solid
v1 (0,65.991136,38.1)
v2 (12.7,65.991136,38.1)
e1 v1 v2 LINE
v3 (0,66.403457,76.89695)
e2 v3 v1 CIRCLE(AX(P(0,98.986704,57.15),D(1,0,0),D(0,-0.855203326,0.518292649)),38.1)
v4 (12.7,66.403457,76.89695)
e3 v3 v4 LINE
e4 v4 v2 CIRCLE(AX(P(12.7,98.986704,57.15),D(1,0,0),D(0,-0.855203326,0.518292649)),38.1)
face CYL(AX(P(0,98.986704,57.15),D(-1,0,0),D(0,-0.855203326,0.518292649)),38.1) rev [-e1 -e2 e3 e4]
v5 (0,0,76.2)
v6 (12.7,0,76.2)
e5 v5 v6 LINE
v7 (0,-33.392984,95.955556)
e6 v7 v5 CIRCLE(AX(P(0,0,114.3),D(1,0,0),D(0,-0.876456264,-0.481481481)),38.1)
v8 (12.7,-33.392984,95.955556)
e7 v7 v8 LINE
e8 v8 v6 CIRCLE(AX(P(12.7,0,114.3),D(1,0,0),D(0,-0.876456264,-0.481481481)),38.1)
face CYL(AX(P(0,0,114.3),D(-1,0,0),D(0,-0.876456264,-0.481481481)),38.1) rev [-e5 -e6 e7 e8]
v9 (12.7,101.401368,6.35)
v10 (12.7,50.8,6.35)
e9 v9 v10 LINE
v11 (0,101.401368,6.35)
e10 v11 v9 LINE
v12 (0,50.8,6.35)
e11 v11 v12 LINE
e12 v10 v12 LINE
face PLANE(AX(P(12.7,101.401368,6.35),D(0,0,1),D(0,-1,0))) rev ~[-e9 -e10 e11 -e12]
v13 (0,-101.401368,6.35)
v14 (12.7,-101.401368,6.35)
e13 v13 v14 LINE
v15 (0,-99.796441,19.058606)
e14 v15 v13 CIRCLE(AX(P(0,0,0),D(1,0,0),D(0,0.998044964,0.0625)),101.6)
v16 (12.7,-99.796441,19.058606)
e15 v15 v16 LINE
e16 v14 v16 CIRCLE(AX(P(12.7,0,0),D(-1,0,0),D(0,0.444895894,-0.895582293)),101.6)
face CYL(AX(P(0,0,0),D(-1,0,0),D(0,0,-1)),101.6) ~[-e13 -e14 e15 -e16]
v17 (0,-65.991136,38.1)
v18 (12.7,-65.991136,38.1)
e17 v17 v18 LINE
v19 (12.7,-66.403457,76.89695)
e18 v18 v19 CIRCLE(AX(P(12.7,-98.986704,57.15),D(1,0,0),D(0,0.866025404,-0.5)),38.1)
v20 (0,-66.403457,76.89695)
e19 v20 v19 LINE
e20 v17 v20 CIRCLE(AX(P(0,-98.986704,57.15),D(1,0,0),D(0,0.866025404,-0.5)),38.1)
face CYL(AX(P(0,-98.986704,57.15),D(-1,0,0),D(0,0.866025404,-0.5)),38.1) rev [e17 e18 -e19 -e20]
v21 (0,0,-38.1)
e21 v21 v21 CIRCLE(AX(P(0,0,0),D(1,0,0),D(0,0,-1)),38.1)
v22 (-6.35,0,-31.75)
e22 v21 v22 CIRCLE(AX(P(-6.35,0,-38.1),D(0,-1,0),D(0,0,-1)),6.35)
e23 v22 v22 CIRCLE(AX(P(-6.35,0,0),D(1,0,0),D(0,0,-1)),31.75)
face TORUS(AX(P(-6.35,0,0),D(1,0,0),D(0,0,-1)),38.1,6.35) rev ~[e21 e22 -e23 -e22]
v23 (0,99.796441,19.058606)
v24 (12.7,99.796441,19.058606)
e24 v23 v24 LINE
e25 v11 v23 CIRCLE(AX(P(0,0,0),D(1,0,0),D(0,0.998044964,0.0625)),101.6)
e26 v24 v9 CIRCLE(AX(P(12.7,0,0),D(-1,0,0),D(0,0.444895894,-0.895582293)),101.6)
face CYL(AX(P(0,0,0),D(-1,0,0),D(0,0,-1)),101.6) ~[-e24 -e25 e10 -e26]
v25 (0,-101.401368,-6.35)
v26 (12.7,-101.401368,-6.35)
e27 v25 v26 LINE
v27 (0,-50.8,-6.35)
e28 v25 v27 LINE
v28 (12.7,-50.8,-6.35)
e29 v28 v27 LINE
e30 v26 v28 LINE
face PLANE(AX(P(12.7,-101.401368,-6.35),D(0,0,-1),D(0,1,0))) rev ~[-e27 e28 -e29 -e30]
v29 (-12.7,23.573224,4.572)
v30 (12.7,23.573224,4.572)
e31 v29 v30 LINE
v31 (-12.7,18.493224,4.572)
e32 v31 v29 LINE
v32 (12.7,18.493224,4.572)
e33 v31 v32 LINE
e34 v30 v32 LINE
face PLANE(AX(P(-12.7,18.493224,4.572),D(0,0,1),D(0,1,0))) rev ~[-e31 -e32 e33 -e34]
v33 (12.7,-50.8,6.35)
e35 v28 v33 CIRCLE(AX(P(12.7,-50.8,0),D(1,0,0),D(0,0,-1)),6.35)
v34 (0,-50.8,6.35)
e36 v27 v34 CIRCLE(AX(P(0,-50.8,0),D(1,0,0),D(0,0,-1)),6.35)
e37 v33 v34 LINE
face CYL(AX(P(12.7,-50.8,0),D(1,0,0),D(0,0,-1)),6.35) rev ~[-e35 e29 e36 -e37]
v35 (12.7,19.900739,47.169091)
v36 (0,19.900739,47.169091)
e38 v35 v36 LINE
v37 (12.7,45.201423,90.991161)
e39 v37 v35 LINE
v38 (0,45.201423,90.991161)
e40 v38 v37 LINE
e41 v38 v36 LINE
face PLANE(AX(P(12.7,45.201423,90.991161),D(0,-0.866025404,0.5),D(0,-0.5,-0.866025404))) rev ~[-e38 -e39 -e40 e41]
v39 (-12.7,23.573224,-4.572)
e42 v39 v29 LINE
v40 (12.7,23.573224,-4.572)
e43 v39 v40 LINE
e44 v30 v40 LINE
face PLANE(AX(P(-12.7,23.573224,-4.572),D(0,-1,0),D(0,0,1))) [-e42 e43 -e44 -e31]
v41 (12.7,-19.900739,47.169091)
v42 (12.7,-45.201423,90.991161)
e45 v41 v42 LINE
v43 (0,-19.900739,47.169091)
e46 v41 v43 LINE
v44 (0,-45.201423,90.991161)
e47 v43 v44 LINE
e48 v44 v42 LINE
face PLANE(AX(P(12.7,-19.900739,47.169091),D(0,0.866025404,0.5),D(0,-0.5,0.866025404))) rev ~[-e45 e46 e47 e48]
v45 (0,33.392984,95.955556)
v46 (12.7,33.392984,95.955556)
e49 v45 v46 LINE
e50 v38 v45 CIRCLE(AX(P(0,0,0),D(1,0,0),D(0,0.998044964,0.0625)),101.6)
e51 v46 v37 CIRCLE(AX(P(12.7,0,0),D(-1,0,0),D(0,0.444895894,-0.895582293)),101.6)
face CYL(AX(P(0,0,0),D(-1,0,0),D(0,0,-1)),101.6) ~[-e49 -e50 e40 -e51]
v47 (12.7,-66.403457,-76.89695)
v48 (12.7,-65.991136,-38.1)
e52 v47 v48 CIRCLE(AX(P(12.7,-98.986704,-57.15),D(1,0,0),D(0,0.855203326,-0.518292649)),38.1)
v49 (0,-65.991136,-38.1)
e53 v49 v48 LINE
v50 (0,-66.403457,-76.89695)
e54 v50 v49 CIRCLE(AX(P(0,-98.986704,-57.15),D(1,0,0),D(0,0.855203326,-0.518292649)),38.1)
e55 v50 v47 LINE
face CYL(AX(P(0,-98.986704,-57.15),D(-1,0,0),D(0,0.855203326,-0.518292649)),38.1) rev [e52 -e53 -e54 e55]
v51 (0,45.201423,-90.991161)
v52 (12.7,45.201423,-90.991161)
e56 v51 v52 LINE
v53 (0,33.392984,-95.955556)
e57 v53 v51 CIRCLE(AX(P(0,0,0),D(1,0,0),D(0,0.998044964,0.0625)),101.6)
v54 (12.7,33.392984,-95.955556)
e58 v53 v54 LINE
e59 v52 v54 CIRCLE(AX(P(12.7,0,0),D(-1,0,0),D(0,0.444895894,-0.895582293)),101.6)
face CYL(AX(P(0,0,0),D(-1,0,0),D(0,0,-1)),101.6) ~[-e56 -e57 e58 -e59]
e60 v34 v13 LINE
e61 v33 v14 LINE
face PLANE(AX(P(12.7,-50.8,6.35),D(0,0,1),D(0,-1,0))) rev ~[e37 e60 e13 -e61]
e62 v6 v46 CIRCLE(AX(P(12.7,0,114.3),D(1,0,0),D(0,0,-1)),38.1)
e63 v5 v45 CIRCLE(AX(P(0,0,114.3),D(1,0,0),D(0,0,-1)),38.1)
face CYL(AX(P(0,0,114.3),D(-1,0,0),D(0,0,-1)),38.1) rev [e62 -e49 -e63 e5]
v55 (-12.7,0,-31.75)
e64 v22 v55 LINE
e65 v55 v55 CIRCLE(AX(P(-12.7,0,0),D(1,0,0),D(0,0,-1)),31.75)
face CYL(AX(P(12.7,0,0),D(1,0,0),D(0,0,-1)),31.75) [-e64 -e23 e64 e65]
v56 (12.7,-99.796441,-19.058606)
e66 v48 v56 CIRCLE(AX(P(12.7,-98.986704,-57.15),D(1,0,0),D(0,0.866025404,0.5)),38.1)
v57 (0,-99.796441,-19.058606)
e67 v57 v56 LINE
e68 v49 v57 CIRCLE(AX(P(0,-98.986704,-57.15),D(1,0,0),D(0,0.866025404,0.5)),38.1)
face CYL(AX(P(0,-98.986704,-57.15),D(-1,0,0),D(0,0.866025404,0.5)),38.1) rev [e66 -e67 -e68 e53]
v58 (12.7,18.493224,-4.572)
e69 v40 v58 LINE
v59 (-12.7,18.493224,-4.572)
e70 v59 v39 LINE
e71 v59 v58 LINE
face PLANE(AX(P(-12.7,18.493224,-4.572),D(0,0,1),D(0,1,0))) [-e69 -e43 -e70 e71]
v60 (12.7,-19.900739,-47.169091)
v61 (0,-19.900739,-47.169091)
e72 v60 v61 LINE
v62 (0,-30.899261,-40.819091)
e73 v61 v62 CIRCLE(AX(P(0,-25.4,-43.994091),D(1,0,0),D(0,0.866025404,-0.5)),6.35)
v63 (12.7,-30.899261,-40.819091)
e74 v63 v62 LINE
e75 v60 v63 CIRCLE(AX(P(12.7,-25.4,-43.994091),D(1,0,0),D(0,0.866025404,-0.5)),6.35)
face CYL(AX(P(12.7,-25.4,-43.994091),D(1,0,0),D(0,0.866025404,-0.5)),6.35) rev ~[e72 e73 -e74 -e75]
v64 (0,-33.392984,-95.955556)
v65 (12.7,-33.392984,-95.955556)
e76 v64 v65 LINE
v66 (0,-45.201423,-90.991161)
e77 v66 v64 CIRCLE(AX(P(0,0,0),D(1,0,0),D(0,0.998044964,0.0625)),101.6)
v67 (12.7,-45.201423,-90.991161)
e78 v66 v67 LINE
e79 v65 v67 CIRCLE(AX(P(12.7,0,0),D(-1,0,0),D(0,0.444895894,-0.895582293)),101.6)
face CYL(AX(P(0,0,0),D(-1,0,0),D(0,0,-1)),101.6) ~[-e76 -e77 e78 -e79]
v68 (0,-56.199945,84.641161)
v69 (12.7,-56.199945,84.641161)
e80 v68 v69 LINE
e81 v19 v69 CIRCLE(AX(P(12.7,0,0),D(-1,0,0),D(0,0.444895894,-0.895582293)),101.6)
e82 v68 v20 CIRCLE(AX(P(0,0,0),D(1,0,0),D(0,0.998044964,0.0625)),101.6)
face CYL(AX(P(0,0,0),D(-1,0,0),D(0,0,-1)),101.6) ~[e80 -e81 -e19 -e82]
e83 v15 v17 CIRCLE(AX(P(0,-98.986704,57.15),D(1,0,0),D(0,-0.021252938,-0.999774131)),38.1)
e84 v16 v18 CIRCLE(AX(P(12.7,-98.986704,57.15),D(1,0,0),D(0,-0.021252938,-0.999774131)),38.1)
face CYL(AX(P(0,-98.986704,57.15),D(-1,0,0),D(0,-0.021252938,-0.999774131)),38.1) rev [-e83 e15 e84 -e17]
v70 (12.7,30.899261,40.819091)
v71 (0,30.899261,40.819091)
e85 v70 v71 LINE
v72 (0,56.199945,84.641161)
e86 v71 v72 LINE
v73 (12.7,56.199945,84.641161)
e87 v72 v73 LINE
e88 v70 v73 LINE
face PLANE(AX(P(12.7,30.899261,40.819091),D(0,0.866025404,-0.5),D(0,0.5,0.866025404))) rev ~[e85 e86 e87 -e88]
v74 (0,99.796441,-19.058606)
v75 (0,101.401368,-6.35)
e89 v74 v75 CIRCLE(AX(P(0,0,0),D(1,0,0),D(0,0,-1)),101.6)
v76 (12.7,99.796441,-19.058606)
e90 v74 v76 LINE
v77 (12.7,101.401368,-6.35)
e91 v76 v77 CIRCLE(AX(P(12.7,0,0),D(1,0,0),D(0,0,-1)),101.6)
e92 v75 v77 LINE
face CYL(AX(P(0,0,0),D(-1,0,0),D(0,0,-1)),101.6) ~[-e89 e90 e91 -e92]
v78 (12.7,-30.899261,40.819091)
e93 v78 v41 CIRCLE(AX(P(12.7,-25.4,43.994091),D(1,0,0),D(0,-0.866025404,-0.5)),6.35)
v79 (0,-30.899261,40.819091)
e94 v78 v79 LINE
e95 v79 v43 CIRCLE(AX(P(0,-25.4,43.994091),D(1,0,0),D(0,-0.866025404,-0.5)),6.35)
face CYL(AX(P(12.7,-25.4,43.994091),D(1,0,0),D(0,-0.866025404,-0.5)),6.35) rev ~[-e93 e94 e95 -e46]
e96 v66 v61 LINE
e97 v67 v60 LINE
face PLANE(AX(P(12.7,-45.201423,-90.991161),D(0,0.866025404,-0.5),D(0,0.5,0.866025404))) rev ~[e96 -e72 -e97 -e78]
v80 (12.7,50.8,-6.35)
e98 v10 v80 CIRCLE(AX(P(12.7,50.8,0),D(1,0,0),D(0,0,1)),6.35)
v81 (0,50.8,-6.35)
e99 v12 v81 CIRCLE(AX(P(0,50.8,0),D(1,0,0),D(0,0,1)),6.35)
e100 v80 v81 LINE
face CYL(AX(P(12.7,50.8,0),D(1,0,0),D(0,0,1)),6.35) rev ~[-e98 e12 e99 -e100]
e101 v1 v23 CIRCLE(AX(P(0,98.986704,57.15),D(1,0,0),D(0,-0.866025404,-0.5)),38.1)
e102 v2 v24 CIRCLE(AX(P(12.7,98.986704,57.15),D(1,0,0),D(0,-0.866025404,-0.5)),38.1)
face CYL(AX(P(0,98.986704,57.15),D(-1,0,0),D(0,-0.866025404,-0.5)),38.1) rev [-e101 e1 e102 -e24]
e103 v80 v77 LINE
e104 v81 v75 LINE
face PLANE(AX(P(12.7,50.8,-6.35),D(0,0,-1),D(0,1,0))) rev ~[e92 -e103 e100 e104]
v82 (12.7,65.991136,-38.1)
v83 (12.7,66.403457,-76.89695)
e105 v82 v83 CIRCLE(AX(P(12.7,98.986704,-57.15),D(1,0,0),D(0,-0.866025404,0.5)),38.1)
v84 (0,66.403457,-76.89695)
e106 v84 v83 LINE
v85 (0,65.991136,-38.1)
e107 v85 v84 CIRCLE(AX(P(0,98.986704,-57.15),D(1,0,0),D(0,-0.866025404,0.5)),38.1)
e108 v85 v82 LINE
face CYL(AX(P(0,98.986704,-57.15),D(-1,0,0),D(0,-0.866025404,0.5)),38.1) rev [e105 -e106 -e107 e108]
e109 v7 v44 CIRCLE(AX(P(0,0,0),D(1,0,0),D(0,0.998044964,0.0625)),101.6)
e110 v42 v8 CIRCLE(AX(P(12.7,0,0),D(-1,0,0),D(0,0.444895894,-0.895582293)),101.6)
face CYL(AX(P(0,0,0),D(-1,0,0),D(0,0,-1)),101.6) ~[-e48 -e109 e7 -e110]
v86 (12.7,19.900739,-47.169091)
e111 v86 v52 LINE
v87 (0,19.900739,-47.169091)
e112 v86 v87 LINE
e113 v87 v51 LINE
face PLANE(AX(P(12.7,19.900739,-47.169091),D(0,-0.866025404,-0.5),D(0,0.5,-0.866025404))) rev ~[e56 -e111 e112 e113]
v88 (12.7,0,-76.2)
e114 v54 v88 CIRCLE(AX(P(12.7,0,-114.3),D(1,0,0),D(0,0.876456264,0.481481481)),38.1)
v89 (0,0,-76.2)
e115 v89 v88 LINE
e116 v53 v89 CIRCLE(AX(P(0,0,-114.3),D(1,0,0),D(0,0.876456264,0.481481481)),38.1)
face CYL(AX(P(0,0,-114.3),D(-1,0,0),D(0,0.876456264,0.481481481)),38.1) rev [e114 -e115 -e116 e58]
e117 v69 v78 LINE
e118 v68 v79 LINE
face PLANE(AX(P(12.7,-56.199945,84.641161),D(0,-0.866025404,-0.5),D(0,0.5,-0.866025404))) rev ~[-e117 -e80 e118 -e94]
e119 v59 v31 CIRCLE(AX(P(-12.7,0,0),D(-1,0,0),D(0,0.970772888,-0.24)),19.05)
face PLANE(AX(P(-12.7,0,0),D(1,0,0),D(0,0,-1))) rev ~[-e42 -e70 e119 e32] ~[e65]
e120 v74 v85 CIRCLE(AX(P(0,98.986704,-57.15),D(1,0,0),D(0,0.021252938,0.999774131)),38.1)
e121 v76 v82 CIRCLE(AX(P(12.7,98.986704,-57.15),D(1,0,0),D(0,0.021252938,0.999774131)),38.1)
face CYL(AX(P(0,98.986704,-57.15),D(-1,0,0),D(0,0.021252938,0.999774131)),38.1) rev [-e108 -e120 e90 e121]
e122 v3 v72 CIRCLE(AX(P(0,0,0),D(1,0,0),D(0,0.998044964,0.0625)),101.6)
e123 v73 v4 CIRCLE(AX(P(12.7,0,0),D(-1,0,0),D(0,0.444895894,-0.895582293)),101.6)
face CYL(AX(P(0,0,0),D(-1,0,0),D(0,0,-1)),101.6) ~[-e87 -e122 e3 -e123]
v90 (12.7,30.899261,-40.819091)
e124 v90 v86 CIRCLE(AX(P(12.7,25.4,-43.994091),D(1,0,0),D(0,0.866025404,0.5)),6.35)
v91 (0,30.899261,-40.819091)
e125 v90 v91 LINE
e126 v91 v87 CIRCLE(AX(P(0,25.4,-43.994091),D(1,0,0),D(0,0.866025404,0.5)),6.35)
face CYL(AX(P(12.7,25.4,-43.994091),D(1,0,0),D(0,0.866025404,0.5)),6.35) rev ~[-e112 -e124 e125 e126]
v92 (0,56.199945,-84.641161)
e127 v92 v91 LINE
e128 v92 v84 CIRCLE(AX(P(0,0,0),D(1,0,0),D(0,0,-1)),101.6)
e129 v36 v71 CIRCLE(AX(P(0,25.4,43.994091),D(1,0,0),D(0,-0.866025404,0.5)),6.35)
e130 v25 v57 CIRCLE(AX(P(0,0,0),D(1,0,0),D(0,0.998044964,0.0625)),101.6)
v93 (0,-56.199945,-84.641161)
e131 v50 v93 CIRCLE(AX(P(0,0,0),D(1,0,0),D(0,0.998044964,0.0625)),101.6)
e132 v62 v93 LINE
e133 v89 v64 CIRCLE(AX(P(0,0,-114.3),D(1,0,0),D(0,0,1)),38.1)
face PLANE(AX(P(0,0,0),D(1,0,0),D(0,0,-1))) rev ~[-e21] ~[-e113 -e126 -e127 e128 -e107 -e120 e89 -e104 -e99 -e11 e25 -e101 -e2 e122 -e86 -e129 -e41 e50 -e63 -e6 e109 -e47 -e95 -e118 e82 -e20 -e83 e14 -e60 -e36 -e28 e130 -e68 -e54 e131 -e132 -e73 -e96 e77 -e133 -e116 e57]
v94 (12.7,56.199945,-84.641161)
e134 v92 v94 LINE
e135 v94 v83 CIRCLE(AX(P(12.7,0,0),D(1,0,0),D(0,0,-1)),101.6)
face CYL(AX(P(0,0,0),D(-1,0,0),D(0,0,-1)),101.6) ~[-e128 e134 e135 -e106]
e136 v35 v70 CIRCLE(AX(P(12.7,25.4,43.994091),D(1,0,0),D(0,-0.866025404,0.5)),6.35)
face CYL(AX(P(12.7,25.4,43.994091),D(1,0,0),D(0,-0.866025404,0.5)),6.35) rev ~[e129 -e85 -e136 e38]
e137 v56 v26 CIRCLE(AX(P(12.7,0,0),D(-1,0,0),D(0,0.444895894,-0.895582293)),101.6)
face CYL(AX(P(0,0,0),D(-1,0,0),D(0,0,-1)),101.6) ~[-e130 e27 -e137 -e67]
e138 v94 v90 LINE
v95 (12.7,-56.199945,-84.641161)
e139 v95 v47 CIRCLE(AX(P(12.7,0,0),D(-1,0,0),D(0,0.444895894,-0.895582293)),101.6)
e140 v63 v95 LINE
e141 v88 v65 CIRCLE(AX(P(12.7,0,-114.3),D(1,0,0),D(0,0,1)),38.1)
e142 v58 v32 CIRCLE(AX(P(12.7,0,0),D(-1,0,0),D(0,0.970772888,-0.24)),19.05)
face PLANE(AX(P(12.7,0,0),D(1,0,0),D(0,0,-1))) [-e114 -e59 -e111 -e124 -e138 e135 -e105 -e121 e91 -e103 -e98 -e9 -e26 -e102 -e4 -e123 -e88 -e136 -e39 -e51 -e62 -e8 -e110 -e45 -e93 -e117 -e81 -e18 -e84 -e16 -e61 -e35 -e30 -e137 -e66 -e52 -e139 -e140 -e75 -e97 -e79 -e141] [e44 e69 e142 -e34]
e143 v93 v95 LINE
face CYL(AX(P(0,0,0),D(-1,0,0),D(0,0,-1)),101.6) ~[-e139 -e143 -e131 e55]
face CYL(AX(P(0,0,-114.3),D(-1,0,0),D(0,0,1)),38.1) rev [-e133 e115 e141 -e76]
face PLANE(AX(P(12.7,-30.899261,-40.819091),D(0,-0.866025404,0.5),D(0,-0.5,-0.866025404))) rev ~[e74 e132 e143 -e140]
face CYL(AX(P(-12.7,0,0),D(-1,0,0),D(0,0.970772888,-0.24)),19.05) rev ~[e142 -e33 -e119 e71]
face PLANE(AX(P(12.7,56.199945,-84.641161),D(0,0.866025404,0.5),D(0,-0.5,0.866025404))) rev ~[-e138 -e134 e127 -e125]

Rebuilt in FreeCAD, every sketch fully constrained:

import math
import FreeCAD as App
import Part
import Sketcher
Q = App.Units.Quantity


def edges_at(feature, points):
    """Names of the edges that pass closest to the given points."""
    edges = feature.Shape.Edges
    near = lambda p: min(range(len(edges)), key=lambda i: edges[i].distToShape(Part.Vertex(*p))[0])
    return sorted({f"Edge{near(p) + 1}" for p in points})

doc = App.newDocument("Part")
body = doc.addObject("PartDesign::Body", "Body")

# Sketch on YZ plane
sketch1 = body.newObject("Sketcher::SketchObject", "Sketch")
sketch1.AttachmentSupport = (doc.getObject("YZ_Plane"), [""])
sketch1.MapMode = "FlatFace"
sketch1.addGeometry(Part.Circle(App.Vector(0, 0, 0), App.Vector(0, 0, 1), 102), False)
sketch1.addConstraint(Sketcher.Constraint("Coincident", 0, 3, -1, 1))
sketch1.addConstraint(Sketcher.Constraint("Diameter", 0, Q("8 in")))
pad1 = body.newObject("PartDesign::Pad", "Pad")
pad1.Profile = sketch1
pad1.Length = Q("0.5 in")

# Sketch on YZ plane
sketch2 = body.newObject("Sketcher::SketchObject", "Sketch001")
sketch2.AttachmentSupport = (doc.getObject("YZ_Plane"), [""])
sketch2.MapMode = "FlatFace"
sketch2.AttachmentOffset = App.Placement(App.Vector(0, 0, 0.5 * 25.4), App.Rotation())
sketch2.addGeometry(Part.LineSegment(App.Vector(51, -6, 0), App.Vector(101, -6, 0)), False)
sketch2.addGeometry(Part.ArcOfCircle(Part.Circle(App.Vector(0, 0, 0), App.Vector(0, 0, 1), 102), math.radians(-3.58), math.radians(3.58)), False)
sketch2.addGeometry(Part.LineSegment(App.Vector(101, 6, 0), App.Vector(51, 6, 0)), False)
sketch2.addGeometry(Part.ArcOfCircle(Part.Circle(App.Vector(51, 0, 0), App.Vector(0, 0, 1), 6), math.radians(90), math.radians(270)), False)
sketch2.addConstraint(Sketcher.Constraint("Coincident", 0, 2, 1, 1))
sketch2.addConstraint(Sketcher.Constraint("Coincident", 1, 2, 2, 1))
sketch2.addConstraint(Sketcher.Constraint("Tangent", 2, 2, 3, 1))
sketch2.addConstraint(Sketcher.Constraint("Tangent", 3, 2, 0, 1))
sketch2.addConstraint(Sketcher.Constraint("Horizontal", 0))
sketch2.addConstraint(Sketcher.Constraint("Horizontal", 2))
sketch2.addConstraint(Sketcher.Constraint("Coincident", 1, 3, -1, 1))
sketch2.addConstraint(Sketcher.Constraint("PointOnObject", 3, 3, -1))
sketch2.addConstraint(Sketcher.Constraint("Radius", 1, Q("4 in")))
sketch2.addConstraint(Sketcher.Constraint("Radius", 3, Q("0.25 in")))
sketch2.addConstraint(Sketcher.Constraint("DistanceX", -1, 1, 3, 3, Q("2 in")))
pocket1 = body.newObject("PartDesign::Pocket", "Pocket")
pocket1.Profile = sketch2
pocket1.Length = 290.488544
pocket1.Midplane = True
doc.recompute()

polarpattern = body.newObject("PartDesign::PolarPattern", "PolarPattern")
polarpattern.Originals = [pocket1]
polarpattern.Axis = (doc.getObject("X_Axis"), [""])
polarpattern.Angle = 360
polarpattern.Occurrences = 6
body.Tip = polarpattern

# Sketch on YZ plane
sketch3 = body.newObject("Sketcher::SketchObject", "Sketch002")
sketch3.AttachmentSupport = (doc.getObject("YZ_Plane"), [""])
sketch3.MapMode = "FlatFace"
sketch3.addGeometry(Part.ArcOfCircle(Part.Circle(App.Vector(0, 114, 0), App.Vector(0, 0, 1), 38), math.radians(-90), math.radians(-29)), False)
sketch3.addGeometry(Part.ArcOfCircle(Part.Circle(App.Vector(0, 0, 0), App.Vector(0, 0, 1), 102), math.radians(71), math.radians(109)), False)
sketch3.addGeometry(Part.ArcOfCircle(Part.Circle(App.Vector(0, 114, 0), App.Vector(0, 0, 1), 38), math.radians(-151), math.radians(-90)), False)
sketch3.addConstraint(Sketcher.Constraint("Coincident", 0, 2, 1, 1))
sketch3.addConstraint(Sketcher.Constraint("Coincident", 1, 2, 2, 1))
sketch3.addConstraint(Sketcher.Constraint("Tangent", 2, 2, 0, 1))
sketch3.addConstraint(Sketcher.Constraint("Coincident", 1, 3, -1, 1))
sketch3.addConstraint(Sketcher.Constraint("Equal", 0, 2))
sketch3.addConstraint(Sketcher.Constraint("PointOnObject", 0, 3, -2))
sketch3.addConstraint(Sketcher.Constraint("PointOnObject", 2, 2, -2))
sketch3.addConstraint(Sketcher.Constraint("Radius", 1, Q("4 in")))
sketch3.addConstraint(Sketcher.Constraint("Radius", 0, Q("1.5 in")))
sketch3.addConstraint(Sketcher.Constraint("DistanceY", -1, 1, 2, 2, Q("3 in")))
pocket2 = body.newObject("PartDesign::Pocket", "Pocket001")
pocket2.Profile = sketch3
pocket2.Length = Q("0.5 in")
pocket2.Reversed = True
doc.recompute()

polarpattern2 = body.newObject("PartDesign::PolarPattern", "PolarPattern001")
polarpattern2.Originals = [pocket2]
polarpattern2.Axis = (doc.getObject("X_Axis"), [""])
polarpattern2.Angle = 360
polarpattern2.Occurrences = 6
body.Tip = polarpattern2

# Sketch on YZ plane
sketch4 = body.newObject("Sketcher::SketchObject", "Sketch003")
sketch4.AttachmentSupport = (doc.getObject("YZ_Plane"), [""])
sketch4.MapMode = "FlatFace"
sketch4.AttachmentOffset = App.Placement(App.Vector(0, 0, 0.5 * 25.4), App.Rotation())
sketch4.addGeometry(Part.Circle(App.Vector(0, 0, 0), App.Vector(0, 0, 1), 32), False)
sketch4.addConstraint(Sketcher.Constraint("Coincident", 0, 3, -1, 1))
sketch4.addConstraint(Sketcher.Constraint("Diameter", 0, Q("2.5 in")))
pad2 = body.newObject("PartDesign::Pad", "Pad001")
pad2.Profile = sketch4
pad2.Length = Q("1 in")
pad2.Reversed = True

# Sketch on YZ plane
sketch5 = body.newObject("Sketcher::SketchObject", "Sketch004")
sketch5.AttachmentSupport = (doc.getObject("YZ_Plane"), [""])
sketch5.MapMode = "FlatFace"
sketch5.AttachmentOffset = App.Placement(App.Vector(0, 0, -0.5 * 25.4), App.Rotation())
sketch5.addGeometry(Part.ArcOfCircle(Part.Circle(App.Vector(0, 0, 0), App.Vector(0, 0, 1), 19), math.radians(14), math.radians(346)), False)
sketch5.addGeometry(Part.LineSegment(App.Vector(18, 5, 0), App.Vector(24, 5, 0)), False)
sketch5.addGeometry(Part.LineSegment(App.Vector(24, 5, 0), App.Vector(24, -5, 0)), False)
sketch5.addGeometry(Part.LineSegment(App.Vector(24, -5, 0), App.Vector(18, -5, 0)), False)
sketch5.addConstraint(Sketcher.Constraint("Coincident", 0, 1, 1, 1))
sketch5.addConstraint(Sketcher.Constraint("Coincident", 1, 2, 2, 1))
sketch5.addConstraint(Sketcher.Constraint("Coincident", 2, 2, 3, 1))
sketch5.addConstraint(Sketcher.Constraint("Coincident", 3, 2, 0, 2))
sketch5.addConstraint(Sketcher.Constraint("Horizontal", 1))
sketch5.addConstraint(Sketcher.Constraint("Vertical", 2))
sketch5.addConstraint(Sketcher.Constraint("Horizontal", 3))
sketch5.addConstraint(Sketcher.Constraint("Coincident", 0, 3, -1, 1))
sketch5.addConstraint(Sketcher.Constraint("Vertical", 0, 1, 3, 2))
sketch5.addConstraint(Sketcher.Constraint("Radius", 0, Q("0.75 in")))
sketch5.addConstraint(Sketcher.Constraint("DistanceX", 1, 1, 1, 2, Q("0.2 in")))
sketch5.addConstraint(Sketcher.Constraint("DistanceY", 2, 2, 2, 1, Q("0.36 in")))
pocket3 = body.newObject("PartDesign::Pocket", "Pocket002")
pocket3.Profile = sketch5
pocket3.Type = "ThroughAll"
pocket3.Reversed = True
doc.recompute()

fillet = body.newObject("PartDesign::Fillet", "Fillet")
fillet.Base = (pocket3, edges_at(pocket3, [(0, 0, 31.75)]))
fillet.Radius = Q("0.25 in")

doc.recompute()
